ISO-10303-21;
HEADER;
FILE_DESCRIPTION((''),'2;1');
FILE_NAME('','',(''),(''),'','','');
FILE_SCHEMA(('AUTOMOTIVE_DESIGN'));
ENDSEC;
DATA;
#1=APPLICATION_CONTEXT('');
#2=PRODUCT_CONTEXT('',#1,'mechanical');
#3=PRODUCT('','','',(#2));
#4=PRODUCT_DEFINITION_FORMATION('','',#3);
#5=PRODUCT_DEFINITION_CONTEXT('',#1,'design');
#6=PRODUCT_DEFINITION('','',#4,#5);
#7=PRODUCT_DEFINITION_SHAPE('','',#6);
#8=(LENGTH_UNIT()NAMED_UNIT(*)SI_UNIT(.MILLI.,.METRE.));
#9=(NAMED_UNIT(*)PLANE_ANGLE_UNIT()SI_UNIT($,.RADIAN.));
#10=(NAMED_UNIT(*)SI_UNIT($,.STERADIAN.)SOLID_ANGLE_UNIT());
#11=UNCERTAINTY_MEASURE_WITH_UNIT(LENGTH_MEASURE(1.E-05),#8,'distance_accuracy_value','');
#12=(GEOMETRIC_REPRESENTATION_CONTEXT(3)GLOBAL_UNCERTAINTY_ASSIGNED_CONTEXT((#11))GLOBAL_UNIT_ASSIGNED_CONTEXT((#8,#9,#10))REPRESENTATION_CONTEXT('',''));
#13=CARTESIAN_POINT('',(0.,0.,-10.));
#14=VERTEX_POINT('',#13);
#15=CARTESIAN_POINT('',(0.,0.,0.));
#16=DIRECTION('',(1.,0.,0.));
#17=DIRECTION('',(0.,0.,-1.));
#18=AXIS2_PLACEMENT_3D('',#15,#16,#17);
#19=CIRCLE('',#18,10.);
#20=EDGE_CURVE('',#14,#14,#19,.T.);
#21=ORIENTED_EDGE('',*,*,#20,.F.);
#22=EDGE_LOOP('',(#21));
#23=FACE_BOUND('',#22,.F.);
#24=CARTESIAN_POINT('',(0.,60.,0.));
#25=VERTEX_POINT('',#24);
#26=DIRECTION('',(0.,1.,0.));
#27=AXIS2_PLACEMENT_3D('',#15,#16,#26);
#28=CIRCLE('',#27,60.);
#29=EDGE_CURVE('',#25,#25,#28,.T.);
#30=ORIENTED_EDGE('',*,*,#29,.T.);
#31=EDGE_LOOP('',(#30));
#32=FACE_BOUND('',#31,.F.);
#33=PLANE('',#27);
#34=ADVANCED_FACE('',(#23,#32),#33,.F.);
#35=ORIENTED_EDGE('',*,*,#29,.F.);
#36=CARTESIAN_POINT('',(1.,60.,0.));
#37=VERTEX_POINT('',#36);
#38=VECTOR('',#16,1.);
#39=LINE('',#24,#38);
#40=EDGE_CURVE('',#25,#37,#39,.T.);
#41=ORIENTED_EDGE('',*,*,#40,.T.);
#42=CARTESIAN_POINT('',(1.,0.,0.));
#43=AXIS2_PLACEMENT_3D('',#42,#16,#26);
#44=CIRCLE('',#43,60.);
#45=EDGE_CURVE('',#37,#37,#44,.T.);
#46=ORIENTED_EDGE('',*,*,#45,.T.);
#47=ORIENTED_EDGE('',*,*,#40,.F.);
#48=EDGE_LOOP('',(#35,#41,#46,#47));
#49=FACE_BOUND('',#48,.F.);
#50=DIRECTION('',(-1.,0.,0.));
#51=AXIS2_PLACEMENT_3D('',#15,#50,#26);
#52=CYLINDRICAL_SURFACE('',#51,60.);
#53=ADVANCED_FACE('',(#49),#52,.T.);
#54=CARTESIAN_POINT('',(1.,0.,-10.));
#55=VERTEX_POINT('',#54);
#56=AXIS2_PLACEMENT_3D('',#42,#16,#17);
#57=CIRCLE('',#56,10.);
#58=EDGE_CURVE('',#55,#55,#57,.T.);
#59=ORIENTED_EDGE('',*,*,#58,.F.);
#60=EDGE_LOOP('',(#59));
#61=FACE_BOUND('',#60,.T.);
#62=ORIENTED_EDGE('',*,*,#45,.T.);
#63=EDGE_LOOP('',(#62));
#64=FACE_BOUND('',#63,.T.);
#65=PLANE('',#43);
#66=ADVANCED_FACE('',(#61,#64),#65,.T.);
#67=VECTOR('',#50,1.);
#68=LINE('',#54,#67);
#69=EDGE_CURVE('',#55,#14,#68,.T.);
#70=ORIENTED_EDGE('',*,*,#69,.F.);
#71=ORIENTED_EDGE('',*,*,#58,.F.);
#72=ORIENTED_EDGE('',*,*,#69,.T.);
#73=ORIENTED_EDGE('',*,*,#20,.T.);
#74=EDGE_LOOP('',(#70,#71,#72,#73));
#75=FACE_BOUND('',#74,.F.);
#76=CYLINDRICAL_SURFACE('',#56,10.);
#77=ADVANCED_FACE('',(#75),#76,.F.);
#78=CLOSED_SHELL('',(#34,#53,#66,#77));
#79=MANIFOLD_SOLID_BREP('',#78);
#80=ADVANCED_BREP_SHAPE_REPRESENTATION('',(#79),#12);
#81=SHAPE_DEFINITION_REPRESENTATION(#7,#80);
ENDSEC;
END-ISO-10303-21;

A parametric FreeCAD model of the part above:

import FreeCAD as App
import Part
import Sketcher
from FreeCAD import Vector
Q = App.Units.Quantity

doc = App.newDocument("Part")
params = doc.addObject("Spreadsheet::Sheet", "Params")
for row, (alias, value) in enumerate([
    ("sketch1_diameter", "120 mm"),
    ("pad1_length", "1 mm"),
    ("sketch2_diameter", "20 mm"),
    ("pocket1_length", "1 mm"),
], start=1):
    params.set(f"A{row}", alias)
    params.set(f"B{row}", "=" + value)
    params.setAlias(f"B{row}", alias)

body = doc.addObject("PartDesign::Body", "Body")

# Sketch on YZ plane
sketch1 = body.newObject("Sketcher::SketchObject", "Sketch")
sketch1.AttachmentSupport = (doc.getObject("YZ_Plane"), [""])
sketch1.MapMode = "FlatFace"
sketch1.addGeometry(Part.Circle(Vector(0, 0, 0), Vector(0, 0, 1), 60), False)
sketch1.addConstraint([
    Sketcher.Constraint("Coincident", 0, 3, -1, 1),
    Sketcher.Constraint("Diameter", 0, Q("120 mm")),
])
sketch1.setExpression("Constraints[1]", "Params.sketch1_diameter")
pad1 = body.newObject("PartDesign::Pad", "Pad")
pad1.Profile = sketch1
pad1.setExpression("Length", "Params.pad1_length")

# Sketch on YZ plane
sketch2 = body.newObject("Sketcher::SketchObject", "Sketch001")
sketch2.AttachmentSupport = (doc.getObject("YZ_Plane"), [""])
sketch2.MapMode = "FlatFace"
sketch2.AttachmentOffset = App.Placement(Vector(0, 0, 1), App.Rotation())
sketch2.addGeometry(Part.Circle(Vector(0, 0, 0), Vector(0, 0, 1), 10), False)
sketch2.addConstraint([
    Sketcher.Constraint("Coincident", 0, 3, -1, 1),
    Sketcher.Constraint("Diameter", 0, Q("20 mm")),
])
sketch2.setExpression("Constraints[1]", "Params.sketch2_diameter")
pocket1 = body.newObject("PartDesign::Pocket", "Pocket")
pocket1.Profile = sketch2
pocket1.setExpression("Length", "Params.pocket1_length")

doc.recompute()
